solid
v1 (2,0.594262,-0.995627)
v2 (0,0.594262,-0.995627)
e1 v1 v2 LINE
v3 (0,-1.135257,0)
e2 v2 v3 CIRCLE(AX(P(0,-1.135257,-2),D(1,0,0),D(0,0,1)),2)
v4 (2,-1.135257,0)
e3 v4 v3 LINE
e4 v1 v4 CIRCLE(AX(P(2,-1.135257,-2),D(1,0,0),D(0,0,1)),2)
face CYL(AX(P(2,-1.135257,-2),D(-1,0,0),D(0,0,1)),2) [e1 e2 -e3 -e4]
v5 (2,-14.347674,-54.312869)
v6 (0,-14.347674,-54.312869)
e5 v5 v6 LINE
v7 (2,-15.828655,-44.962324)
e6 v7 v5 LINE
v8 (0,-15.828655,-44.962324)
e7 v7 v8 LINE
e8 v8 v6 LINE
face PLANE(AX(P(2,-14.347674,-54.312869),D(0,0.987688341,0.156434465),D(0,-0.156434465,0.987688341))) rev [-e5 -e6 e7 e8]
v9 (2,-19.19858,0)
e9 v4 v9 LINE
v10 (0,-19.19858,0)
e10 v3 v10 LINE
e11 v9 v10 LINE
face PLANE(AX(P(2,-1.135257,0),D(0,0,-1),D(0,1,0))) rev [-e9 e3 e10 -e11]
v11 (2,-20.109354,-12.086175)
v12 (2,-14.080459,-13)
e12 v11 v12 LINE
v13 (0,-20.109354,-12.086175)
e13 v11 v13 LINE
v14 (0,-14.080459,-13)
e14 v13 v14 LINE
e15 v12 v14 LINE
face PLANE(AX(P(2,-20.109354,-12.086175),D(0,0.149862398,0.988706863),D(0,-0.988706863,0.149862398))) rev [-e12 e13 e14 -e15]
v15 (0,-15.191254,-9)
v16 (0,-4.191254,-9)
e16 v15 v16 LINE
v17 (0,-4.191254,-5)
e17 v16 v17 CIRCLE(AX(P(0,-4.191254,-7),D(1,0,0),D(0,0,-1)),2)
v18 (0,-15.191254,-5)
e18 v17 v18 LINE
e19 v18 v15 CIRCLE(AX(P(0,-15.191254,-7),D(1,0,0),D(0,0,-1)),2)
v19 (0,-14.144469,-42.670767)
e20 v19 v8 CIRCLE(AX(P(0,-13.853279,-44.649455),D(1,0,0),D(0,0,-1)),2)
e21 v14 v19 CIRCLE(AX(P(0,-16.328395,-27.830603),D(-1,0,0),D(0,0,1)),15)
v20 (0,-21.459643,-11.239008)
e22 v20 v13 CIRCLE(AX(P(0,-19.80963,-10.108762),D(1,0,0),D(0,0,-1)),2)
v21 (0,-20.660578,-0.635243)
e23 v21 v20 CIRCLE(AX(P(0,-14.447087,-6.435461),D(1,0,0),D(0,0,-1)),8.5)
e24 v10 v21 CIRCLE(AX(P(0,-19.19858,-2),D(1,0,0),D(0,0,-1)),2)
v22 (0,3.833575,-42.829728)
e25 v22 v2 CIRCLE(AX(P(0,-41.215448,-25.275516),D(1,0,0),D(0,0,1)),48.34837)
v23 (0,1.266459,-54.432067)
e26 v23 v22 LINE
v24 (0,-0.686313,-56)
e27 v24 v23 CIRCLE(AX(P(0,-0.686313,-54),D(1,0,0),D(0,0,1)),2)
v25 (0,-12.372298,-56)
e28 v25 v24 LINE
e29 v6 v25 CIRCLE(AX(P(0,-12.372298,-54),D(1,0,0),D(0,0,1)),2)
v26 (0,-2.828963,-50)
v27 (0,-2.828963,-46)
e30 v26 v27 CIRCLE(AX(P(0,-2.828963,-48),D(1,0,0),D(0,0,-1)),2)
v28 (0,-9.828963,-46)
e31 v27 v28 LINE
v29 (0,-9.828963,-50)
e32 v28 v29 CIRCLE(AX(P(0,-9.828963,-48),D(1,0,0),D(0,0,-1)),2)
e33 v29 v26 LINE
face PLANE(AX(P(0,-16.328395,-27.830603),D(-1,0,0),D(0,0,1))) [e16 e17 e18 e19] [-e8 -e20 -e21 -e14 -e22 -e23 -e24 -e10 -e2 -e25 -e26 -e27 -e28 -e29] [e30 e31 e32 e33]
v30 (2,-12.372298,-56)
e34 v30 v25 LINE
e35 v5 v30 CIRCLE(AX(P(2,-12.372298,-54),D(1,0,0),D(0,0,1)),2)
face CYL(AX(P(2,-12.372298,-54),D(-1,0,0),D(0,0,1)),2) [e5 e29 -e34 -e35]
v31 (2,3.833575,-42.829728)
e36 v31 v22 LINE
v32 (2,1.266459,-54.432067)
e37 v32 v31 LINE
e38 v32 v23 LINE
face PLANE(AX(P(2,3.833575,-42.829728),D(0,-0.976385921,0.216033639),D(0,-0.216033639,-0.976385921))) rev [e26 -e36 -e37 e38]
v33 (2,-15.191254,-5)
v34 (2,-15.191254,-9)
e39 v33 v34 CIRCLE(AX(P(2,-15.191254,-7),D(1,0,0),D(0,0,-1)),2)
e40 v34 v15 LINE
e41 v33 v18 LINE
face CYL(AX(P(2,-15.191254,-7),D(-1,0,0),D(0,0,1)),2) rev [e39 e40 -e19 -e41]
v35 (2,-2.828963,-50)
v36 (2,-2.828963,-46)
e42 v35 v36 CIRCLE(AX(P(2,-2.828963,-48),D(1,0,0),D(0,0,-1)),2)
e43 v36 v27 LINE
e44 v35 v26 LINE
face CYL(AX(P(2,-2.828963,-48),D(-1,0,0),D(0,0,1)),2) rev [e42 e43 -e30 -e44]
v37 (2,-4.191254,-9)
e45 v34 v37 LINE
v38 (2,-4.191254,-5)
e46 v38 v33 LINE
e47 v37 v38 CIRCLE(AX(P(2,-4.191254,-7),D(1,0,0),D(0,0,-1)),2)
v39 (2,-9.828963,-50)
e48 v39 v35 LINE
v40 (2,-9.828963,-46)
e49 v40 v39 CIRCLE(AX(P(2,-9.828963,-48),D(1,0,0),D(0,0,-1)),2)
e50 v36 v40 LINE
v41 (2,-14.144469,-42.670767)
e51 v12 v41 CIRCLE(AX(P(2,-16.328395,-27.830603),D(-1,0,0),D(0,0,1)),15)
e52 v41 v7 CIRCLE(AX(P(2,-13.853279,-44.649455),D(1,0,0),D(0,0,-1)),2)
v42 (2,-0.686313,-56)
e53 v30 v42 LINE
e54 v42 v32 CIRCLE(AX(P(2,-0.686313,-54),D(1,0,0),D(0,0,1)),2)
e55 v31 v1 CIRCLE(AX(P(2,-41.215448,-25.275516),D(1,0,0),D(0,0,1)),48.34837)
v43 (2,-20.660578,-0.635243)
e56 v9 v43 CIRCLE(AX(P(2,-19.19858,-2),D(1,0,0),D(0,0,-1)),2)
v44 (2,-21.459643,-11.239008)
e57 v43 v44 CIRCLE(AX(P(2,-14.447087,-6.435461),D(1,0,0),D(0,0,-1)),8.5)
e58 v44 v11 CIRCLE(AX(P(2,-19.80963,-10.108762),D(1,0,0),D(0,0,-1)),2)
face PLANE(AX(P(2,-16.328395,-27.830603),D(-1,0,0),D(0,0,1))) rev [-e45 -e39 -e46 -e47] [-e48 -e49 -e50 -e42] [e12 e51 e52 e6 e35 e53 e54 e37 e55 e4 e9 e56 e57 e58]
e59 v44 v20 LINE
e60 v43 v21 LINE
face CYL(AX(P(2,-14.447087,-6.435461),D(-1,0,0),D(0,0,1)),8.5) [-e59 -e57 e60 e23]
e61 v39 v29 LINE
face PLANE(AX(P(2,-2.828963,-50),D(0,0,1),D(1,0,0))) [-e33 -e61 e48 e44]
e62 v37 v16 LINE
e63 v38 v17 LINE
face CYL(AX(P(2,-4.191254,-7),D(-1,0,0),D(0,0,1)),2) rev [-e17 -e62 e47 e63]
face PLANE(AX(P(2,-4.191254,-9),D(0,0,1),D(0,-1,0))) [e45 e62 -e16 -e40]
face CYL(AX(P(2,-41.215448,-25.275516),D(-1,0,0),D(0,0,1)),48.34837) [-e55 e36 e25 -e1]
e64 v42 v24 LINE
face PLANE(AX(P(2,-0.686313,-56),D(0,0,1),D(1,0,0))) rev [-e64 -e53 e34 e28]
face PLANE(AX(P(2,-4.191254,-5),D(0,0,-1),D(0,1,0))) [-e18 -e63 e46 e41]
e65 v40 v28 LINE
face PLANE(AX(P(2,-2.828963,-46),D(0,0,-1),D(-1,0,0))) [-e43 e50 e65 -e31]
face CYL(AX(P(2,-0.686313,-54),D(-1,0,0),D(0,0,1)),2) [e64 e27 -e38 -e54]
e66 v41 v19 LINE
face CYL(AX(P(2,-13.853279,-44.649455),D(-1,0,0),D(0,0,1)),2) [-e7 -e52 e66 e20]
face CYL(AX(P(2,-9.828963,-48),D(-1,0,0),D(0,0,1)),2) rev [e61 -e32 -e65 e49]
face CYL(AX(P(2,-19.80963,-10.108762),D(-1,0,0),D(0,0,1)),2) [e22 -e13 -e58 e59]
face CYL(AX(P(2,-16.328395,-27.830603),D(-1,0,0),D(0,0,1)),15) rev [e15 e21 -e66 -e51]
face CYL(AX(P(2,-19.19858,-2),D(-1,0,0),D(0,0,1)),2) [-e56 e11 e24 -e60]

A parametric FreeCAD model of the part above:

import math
import FreeCAD as App
import Part
import Sketcher

V = App.Vector
Q = App.Units.Quantity

doc = App.newDocument("Part")
body = doc.addObject("PartDesign::Body", "Body")

# Sketch on YZ plane
sketch1 = body.newObject("Sketcher::SketchObject", "Sketch")
sketch1.AttachmentSupport = (doc.getObject("YZ_Plane"), [""])
sketch1.MapMode = "FlatFace"
sketch1.addGeometry([
    Part.LineSegment(V(-1.135257, 0, 0), V(-19.19858, 0, 0)),  # 0
    Part.ArcOfCircle(Part.Circle(V(-19.19858, -2, 0), V(0, 0, 1), 2), math.radians(90), math.radians(136.970203)),  # 1
    Part.ArcOfCircle(Part.Circle(V(-14.447087, -6.435461, 0), V(0, 0, 1), 8.5), math.radians(136.970203), math.radians(214.410845)),  # 2
    Part.ArcOfCircle(Part.Circle(V(-19.80963, -10.108762, 0), V(0, 0, 1), 2), math.radians(-145.589155), math.radians(-98.618952)),  # 3
    Part.LineSegment(V(-20.109354, -12.086175, 0), V(-14.080459, -13, 0)),  # 4
    Part.ArcOfCircle(Part.Circle(V(-16.328395, -27.830603, 0), V(0, 0, 1), 15), math.radians(-81.628259), math.radians(81.381048)),  # 5
    Part.ArcOfCircle(Part.Circle(V(-13.853279, -44.649455, 0), V(0, 0, 1), 2), math.radians(98.371741), math.radians(189)),  # 6
    Part.LineSegment(V(-15.828655, -44.962324, 0), V(-14.347674, -54.312869, 0)),  # 7
    Part.ArcOfCircle(Part.Circle(V(-12.372298, -54, 0), V(0, 0, 1), 2), math.radians(-171), math.radians(-90)),  # 8
    Part.LineSegment(V(-12.372298, -56, 0), V(-0.686313, -56, 0)),  # 9
    Part.ArcOfCircle(Part.Circle(V(-0.686313, -54, 0), V(0, 0, 1), 2), math.radians(-90), math.radians(-12.476176)),  # 10
    Part.LineSegment(V(1.266459, -54.432067, 0), V(3.833575, -42.829728, 0)),  # 11
    Part.ArcOfCircle(Part.Circle(V(-41.215448, -25.275516, 0), V(0, 0, 1), 48.34837), math.radians(-21.289326), math.radians(30.144749)),  # 12
    Part.ArcOfCircle(Part.Circle(V(-1.135257, -2, 0), V(0, 0, 1), 2), math.radians(30.144749), math.radians(90)),  # 13
    Part.ArcOfCircle(Part.Circle(V(-4.191254, -7, 0), V(0, 0, 1), 2), math.radians(-90), math.radians(90)),  # 14
    Part.LineSegment(V(-4.191254, -9, 0), V(-15.191254, -9, 0)),  # 15
    Part.ArcOfCircle(Part.Circle(V(-15.191254, -7, 0), V(0, 0, 1), 2), math.radians(90), math.radians(270)),  # 16
    Part.LineSegment(V(-15.191254, -5, 0), V(-4.191254, -5, 0)),  # 17
    Part.ArcOfCircle(Part.Circle(V(-2.828963, -48, 0), V(0, 0, 1), 2), math.radians(-90), math.radians(90)),  # 18
    Part.LineSegment(V(-2.828963, -50, 0), V(-9.828963, -50, 0)),  # 19
    Part.ArcOfCircle(Part.Circle(V(-9.828963, -48, 0), V(0, 0, 1), 2), math.radians(90), math.radians(270)),  # 20
    Part.LineSegment(V(-9.828963, -46, 0), V(-2.828963, -46, 0)),  # 21
], False)
sketch1.addConstraint([
    Sketcher.Constraint("Coincident", 0, 2, 1, 1),
    Sketcher.Constraint("Coincident", 1, 2, 2, 1),
    Sketcher.Constraint("Coincident", 2, 2, 3, 1),
    Sketcher.Constraint("Coincident", 3, 2, 4, 1),
    Sketcher.Constraint("Coincident", 4, 2, 5, 2),
    Sketcher.Constraint("Coincident", 5, 1, 6, 1),
    Sketcher.Constraint("Coincident", 6, 2, 7, 1),
    Sketcher.Constraint("Coincident", 7, 2, 8, 1),
    Sketcher.Constraint("Coincident", 8, 2, 9, 1),
    Sketcher.Constraint("Coincident", 9, 2, 10, 1),
    Sketcher.Constraint("Coincident", 10, 2, 11, 1),
    Sketcher.Constraint("Coincident", 11, 2, 12, 1),
    Sketcher.Constraint("Coincident", 12, 2, 13, 1),
    Sketcher.Constraint("Coincident", 13, 2, 0, 1),
    Sketcher.Constraint("Coincident", 14, 1, 15, 1),
    Sketcher.Constraint("Coincident", 15, 2, 16, 2),
    Sketcher.Constraint("Coincident", 16, 1, 17, 1),
    Sketcher.Constraint("Coincident", 17, 2, 14, 2),
    Sketcher.Constraint("Coincident", 18, 1, 19, 1),
    Sketcher.Constraint("Coincident", 19, 2, 20, 2),
    Sketcher.Constraint("Coincident", 20, 1, 21, 1),
    Sketcher.Constraint("Coincident", 21, 2, 18, 2),
    Sketcher.Constraint("Horizontal", 0),
    Sketcher.Constraint("Horizontal", 9),
    Sketcher.Constraint("Horizontal", 15),
    Sketcher.Constraint("Horizontal", 17),
    Sketcher.Constraint("Horizontal", 19),
    Sketcher.Constraint("Horizontal", 21),
    Sketcher.Constraint("PointOnObject", 0, 2, -1),
    Sketcher.Constraint("Radius", 1, Q("2 mm")),
    Sketcher.Constraint("Radius", 3, Q("2 mm")),
    Sketcher.Constraint("Radius", 5, Q("15 mm")),
    Sketcher.Constraint("Radius", 6, Q("2 mm")),
    Sketcher.Constraint("Radius", 8, Q("2 mm")),
    Sketcher.Constraint("Radius", 10, Q("2 mm")),
    Sketcher.Constraint("Radius", 13, Q("2 mm")),
    Sketcher.Constraint("Radius", 14, Q("2 mm")),
    Sketcher.Constraint("Radius", 18, Q("2 mm")),
    Sketcher.Constraint("Radius", 2, Q("8.5 mm")),
    Sketcher.Constraint("DistanceX", 15, 2, 15, 1, Q("11 mm")),
    Sketcher.Constraint("DistanceX", 17, 1, 17, 2, Q("11 mm")),
    Sketcher.Constraint("DistanceX", 19, 2, 19, 1, Q("7 mm")),
    Sketcher.Constraint("DistanceX", 21, 1, 21, 2, Q("7 mm")),
    Sketcher.Constraint("DistanceY", 8, 3, -1, 1, Q("54 mm")),
    Sketcher.Constraint("DistanceY", 14, 3, -1, 1, Q("7 mm")),
    Sketcher.Constraint("DistanceY", 18, 3, -1, 1, Q("48 mm")),
    Sketcher.Constraint("DistanceY", 4, 2, -1, 1, Q("13 mm")),
    Sketcher.Constraint("DistanceX", 16, 3, 14, 3, Q("11 mm")),
    Sketcher.Constraint("DistanceX", 20, 3, 18, 3, Q("7 mm")),
    Sketcher.Constraint("DistanceX", 20, 3, 18, 1, Q("7 mm")),
    Sketcher.Constraint("DistanceX", 20, 3, 21, 2, Q("7 mm")),
    Sketcher.Constraint("Radius", 12, Q("48.34837 mm")),
    Sketcher.Constraint("Distance", 7, Q("9.4671 mm")),
    Sketcher.Constraint("DistanceY", 3, 3, 2, 3, Q("3.673301 mm")),
    Sketcher.Constraint("DistanceX", 1, 3, 6, 3, Q("5.345302 mm")),
    Sketcher.Constraint("DistanceX", 3, 2, 16, 3, Q("4.918101 mm")),
    Sketcher.Constraint("DistanceX", 3, 2, 15, 2, Q("4.918101 mm")),
    Sketcher.Constraint("Distance", 4, Q("6.097758 mm")),
    Sketcher.Constraint("DistanceX", 0, 2, 0, 1, Q("18.063323 mm")),
    Sketcher.Constraint("DistanceX", 9, 1, 9, 2, Q("11.685985 mm")),
    Sketcher.Constraint("DistanceX", 1, 3, -1, 1, Q("19.19858 mm")),
    Sketcher.Constraint("DistanceY", 2, 3, -1, 1, Q("6.435461 mm")),
    Sketcher.Constraint("DistanceX", 12, 3, -1, 1, Q("41.215448 mm")),
    Sketcher.Constraint("DistanceX", 0, 2, -1, 1, Q("19.19858 mm")),
    Sketcher.Constraint("DistanceX", 4, 2, -1, 1, Q("14.080459 mm")),
    Sketcher.Constraint("DistanceX", 5, 1, -1, 1, Q("14.144469 mm")),
    Sketcher.Constraint("DistanceY", 7, 2, -1, 1, Q("54.312869 mm")),
    Sketcher.Constraint("DistanceX", -1, 1, 10, 2, Q("1.266459 mm")),
    Sketcher.Constraint("DistanceY", 11, 2, -1, 1, Q("42.829728 mm")),
    Sketcher.Constraint("DistanceY", 5, 3, 3, 3, Q("17.721841 mm")),
    Sketcher.Constraint("DistanceX", 6, 3, 8, 3, Q("1.480981 mm")),
    Sketcher.Constraint("DistanceY", 6, 3, 12, 3, Q("19.37394 mm")),
    Sketcher.Constraint("DistanceX", 18, 3, 10, 3, Q("2.14265 mm")),
    Sketcher.Constraint("DistanceX", 14, 3, 18, 3, Q("1.362291 mm")),
    Sketcher.Constraint("DistanceX", 1, 2, 2, 3, Q("6.213491 mm")),
    Sketcher.Constraint("DistanceX", 2, 2, 16, 3, Q("6.268389 mm")),
    Sketcher.Constraint("DistanceX", 6, 3, 8, 2, Q("1.480981 mm")),
    Sketcher.Constraint("DistanceX", 13, 3, 12, 2, Q("1.729519 mm")),
    Sketcher.Constraint("DistanceX", 16, 1, -1, 1, Q("15.191254 mm")),
])
pad1 = body.newObject("PartDesign::Pad", "Pad")
pad1.Profile = sketch1
pad1.Length = 2

doc.recompute()
